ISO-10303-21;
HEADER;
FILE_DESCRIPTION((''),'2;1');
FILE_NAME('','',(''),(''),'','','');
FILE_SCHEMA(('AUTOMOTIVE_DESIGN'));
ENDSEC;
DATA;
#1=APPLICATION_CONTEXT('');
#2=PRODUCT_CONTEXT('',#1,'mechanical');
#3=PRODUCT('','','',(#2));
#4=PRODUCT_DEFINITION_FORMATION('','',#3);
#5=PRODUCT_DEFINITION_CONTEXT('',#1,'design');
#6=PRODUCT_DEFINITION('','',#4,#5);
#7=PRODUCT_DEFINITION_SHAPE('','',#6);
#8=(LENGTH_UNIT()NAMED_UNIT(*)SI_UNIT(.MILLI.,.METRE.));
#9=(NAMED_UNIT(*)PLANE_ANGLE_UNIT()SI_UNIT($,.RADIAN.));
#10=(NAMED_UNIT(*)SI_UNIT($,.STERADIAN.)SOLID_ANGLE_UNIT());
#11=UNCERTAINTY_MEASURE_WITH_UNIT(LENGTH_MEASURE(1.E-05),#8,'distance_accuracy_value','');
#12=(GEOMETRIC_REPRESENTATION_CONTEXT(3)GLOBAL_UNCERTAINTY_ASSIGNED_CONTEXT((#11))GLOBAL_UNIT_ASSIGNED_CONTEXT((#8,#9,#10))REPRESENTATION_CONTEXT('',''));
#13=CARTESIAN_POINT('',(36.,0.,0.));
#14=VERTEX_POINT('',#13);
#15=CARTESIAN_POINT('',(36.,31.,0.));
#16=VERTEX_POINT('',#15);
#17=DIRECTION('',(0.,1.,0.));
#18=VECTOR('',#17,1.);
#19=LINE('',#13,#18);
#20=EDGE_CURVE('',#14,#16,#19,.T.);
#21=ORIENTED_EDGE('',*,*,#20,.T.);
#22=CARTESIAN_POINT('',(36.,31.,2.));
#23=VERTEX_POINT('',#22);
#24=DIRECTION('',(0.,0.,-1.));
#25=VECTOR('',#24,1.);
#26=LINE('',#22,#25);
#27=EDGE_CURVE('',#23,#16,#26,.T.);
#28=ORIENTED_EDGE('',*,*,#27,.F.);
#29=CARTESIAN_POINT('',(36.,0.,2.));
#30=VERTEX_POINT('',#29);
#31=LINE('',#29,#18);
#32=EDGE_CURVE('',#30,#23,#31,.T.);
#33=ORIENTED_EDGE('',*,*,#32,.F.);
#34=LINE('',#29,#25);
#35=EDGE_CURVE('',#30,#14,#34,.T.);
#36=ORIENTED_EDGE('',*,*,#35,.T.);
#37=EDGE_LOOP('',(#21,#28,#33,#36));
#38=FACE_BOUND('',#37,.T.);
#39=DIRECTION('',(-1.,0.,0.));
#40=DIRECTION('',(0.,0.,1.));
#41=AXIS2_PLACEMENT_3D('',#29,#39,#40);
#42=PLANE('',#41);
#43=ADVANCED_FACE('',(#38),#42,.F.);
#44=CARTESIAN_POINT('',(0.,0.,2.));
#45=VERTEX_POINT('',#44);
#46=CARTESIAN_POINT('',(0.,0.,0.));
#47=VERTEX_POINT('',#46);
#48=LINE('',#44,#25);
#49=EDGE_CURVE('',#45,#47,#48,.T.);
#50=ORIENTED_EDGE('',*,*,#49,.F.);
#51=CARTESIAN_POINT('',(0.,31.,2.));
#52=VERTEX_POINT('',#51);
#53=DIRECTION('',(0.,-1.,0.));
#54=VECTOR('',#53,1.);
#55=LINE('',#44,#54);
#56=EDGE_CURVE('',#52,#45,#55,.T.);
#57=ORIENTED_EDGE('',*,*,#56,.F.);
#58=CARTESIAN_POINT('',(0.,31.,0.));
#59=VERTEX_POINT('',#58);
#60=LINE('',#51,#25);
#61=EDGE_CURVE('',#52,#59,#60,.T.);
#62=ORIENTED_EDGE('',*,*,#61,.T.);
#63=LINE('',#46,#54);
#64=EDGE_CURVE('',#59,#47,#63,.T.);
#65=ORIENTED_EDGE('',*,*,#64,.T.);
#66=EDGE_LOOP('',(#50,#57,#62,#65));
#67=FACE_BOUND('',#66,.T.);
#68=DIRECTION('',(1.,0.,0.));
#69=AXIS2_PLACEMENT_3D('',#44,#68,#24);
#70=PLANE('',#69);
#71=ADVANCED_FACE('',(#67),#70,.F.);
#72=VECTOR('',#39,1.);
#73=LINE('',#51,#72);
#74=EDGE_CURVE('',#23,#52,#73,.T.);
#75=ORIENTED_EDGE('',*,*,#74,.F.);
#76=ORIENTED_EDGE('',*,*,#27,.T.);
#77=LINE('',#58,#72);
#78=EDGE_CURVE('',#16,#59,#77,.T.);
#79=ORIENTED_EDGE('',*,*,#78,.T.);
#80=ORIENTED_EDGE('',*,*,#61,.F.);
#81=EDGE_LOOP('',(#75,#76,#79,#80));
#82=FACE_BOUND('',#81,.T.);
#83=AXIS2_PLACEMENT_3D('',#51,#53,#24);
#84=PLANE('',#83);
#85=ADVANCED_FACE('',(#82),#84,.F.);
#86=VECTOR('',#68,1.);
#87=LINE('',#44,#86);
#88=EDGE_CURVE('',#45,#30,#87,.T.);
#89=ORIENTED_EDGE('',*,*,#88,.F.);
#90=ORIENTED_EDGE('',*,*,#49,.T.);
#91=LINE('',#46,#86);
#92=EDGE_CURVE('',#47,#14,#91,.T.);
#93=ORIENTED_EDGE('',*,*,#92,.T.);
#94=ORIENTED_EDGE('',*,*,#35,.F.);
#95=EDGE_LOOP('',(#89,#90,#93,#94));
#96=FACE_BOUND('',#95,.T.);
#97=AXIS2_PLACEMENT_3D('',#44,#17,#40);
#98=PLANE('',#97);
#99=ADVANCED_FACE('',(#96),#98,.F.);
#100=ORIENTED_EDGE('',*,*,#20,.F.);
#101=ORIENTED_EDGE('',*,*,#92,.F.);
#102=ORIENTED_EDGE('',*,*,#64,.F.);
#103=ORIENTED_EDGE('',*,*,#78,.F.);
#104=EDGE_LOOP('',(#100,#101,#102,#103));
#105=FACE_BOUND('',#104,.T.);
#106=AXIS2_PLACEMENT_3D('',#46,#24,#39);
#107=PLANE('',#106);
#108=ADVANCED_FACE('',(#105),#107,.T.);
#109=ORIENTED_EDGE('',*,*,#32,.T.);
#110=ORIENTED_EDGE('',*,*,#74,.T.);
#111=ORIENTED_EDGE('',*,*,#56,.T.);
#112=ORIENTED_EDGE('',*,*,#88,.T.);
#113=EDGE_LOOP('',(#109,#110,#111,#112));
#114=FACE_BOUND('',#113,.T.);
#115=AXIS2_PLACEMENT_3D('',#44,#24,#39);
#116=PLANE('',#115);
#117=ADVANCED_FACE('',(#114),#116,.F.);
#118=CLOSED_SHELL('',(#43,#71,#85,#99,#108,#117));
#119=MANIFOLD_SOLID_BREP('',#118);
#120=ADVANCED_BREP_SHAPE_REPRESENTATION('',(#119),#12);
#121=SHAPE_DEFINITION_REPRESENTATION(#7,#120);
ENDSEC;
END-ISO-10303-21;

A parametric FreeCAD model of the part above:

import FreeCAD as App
import Part
import Sketcher
Q = App.Units.Quantity


def add_polygon(sketch, points):
    """Adds a closed chain of lines whose ends are joined by coincident constraints."""
    first, n = sketch.GeometryCount, len(points)
    for a, b in zip(points, points[1:] + points[:1]):
        sketch.addGeometry(Part.LineSegment(App.Vector(*a, 0), App.Vector(*b, 0)), False)
    for i in range(n):
        sketch.addConstraint(Sketcher.Constraint("Coincident", first + i, 2, first + (i + 1) % n, 1))

doc = App.newDocument("Part")
body = doc.addObject("PartDesign::Body", "Body")

# Sketch on XY plane
sketch1 = doc.addObject("Sketcher::SketchObject", "Sketch")
body.addObject(sketch1)
sketch1.AttachmentSupport = (doc.XY_Plane, [""])
sketch1.MapMode = "FlatFace"
add_polygon(sketch1, [(0, 31), (0, 0), (36, 0), (36, 31)])  # lines 0-3
sketch1.addConstraint([
    Sketcher.Constraint("Vertical", 0),
    Sketcher.Constraint("Horizontal", 1),
    Sketcher.Constraint("Vertical", 2),
    Sketcher.Constraint("Horizontal", 3),
    Sketcher.Constraint("Coincident", 0, 2, -1, 1),
    Sketcher.Constraint("DistanceX", 1, 1, 1, 2, Q("36 mm")),
    Sketcher.Constraint("DistanceY", 0, 2, 0, 1, Q("31 mm")),
])
pad1 = doc.addObject("PartDesign::Pad", "Pad")
body.addObject(pad1)
pad1.Profile = sketch1
pad1.Length = 2

doc.recompute()
